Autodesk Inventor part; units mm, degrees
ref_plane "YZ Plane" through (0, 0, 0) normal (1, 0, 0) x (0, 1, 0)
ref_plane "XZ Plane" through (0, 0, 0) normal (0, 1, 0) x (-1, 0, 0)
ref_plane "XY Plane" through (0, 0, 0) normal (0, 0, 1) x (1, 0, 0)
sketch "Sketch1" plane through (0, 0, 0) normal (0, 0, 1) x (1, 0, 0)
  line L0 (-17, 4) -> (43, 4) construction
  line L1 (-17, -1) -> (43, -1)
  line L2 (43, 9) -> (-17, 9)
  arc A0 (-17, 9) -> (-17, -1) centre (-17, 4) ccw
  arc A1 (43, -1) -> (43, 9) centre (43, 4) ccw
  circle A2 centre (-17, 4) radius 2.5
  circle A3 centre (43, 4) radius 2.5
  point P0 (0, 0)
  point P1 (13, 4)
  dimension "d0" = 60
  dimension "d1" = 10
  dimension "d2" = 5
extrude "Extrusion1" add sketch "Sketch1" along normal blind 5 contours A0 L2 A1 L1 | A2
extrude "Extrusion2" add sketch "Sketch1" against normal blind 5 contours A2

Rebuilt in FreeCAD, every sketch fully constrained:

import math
import FreeCAD as App
import Part
import Sketcher

doc = App.newDocument("Part")
body = doc.addObject("PartDesign::Body", "Body")

sketch1 = doc.addObject("Sketcher::SketchObject", "Sketch")
body.addObject(sketch1)
sketch1.AttachmentSupport = (doc.XY_Plane, [""])
sketch1.MapMode = "FlatFace"
sketch1.addGeometry([
    Part.ArcOfCircle(Part.Circle(App.Vector(-17, 4, 0), App.Vector(0, 0, 1), 5), math.radians(90), math.radians(270)),
    Part.LineSegment(App.Vector(-17, -1, 0), App.Vector(43, -1, 0)),
    Part.ArcOfCircle(Part.Circle(App.Vector(43, 4, 0), App.Vector(0, 0, 1), 5), math.radians(-90), math.radians(90)),
    Part.LineSegment(App.Vector(43, 9, 0), App.Vector(-17, 9, 0)),
    Part.Circle(App.Vector(43, 4, 0), App.Vector(0, 0, 1), 2.5),
], False)
sketch1.addConstraint([
    Sketcher.Constraint("Tangent", 0, 2, 1, 1),
    Sketcher.Constraint("Tangent", 1, 2, 2, 1),
    Sketcher.Constraint("Tangent", 2, 2, 3, 1),
    Sketcher.Constraint("Tangent", 3, 2, 0, 1),
    Sketcher.Constraint("Horizontal", 1),
    Sketcher.Constraint("Horizontal", 3),
    Sketcher.Constraint("Coincident", 4, 3, 2, 3),
    Sketcher.Constraint("Diameter", 4, 5.0),
    Sketcher.Constraint("Radius", 0, 5.0),
    Sketcher.Constraint("DistanceX", 1, 1, 1, 2, 60.0),
    Sketcher.Constraint("DistanceX", 0, 3, -1, 1, 17.0),
    Sketcher.Constraint("DistanceY", -1, 1, 0, 3, 4.0),
])
pad1 = doc.addObject("PartDesign::Pad", "Pad")
body.addObject(pad1)
pad1.Profile = sketch1
pad1.Length = 5

sketch2 = doc.addObject("Sketcher::SketchObject", "Sketch001")
body.addObject(sketch2)
sketch2.AttachmentSupport = (doc.XY_Plane, [""])
sketch2.MapMode = "FlatFace"
sketch2.addGeometry(Part.Circle(App.Vector(-17, 4, 0), App.Vector(0, 0, 1), 2.5), False)
sketch2.addConstraint([
    Sketcher.Constraint("Diameter", 0, 5.0),
    Sketcher.Constraint("DistanceX", 0, 3, -1, 1, 17.0),
    Sketcher.Constraint("DistanceY", -1, 1, 0, 3, 4.0),
])
pad2 = doc.addObject("PartDesign::Pad", "Pad001")
body.addObject(pad2)
pad2.Profile = sketch2
pad2.Length = 5
pad2.Reversed = True

doc.recompute()
